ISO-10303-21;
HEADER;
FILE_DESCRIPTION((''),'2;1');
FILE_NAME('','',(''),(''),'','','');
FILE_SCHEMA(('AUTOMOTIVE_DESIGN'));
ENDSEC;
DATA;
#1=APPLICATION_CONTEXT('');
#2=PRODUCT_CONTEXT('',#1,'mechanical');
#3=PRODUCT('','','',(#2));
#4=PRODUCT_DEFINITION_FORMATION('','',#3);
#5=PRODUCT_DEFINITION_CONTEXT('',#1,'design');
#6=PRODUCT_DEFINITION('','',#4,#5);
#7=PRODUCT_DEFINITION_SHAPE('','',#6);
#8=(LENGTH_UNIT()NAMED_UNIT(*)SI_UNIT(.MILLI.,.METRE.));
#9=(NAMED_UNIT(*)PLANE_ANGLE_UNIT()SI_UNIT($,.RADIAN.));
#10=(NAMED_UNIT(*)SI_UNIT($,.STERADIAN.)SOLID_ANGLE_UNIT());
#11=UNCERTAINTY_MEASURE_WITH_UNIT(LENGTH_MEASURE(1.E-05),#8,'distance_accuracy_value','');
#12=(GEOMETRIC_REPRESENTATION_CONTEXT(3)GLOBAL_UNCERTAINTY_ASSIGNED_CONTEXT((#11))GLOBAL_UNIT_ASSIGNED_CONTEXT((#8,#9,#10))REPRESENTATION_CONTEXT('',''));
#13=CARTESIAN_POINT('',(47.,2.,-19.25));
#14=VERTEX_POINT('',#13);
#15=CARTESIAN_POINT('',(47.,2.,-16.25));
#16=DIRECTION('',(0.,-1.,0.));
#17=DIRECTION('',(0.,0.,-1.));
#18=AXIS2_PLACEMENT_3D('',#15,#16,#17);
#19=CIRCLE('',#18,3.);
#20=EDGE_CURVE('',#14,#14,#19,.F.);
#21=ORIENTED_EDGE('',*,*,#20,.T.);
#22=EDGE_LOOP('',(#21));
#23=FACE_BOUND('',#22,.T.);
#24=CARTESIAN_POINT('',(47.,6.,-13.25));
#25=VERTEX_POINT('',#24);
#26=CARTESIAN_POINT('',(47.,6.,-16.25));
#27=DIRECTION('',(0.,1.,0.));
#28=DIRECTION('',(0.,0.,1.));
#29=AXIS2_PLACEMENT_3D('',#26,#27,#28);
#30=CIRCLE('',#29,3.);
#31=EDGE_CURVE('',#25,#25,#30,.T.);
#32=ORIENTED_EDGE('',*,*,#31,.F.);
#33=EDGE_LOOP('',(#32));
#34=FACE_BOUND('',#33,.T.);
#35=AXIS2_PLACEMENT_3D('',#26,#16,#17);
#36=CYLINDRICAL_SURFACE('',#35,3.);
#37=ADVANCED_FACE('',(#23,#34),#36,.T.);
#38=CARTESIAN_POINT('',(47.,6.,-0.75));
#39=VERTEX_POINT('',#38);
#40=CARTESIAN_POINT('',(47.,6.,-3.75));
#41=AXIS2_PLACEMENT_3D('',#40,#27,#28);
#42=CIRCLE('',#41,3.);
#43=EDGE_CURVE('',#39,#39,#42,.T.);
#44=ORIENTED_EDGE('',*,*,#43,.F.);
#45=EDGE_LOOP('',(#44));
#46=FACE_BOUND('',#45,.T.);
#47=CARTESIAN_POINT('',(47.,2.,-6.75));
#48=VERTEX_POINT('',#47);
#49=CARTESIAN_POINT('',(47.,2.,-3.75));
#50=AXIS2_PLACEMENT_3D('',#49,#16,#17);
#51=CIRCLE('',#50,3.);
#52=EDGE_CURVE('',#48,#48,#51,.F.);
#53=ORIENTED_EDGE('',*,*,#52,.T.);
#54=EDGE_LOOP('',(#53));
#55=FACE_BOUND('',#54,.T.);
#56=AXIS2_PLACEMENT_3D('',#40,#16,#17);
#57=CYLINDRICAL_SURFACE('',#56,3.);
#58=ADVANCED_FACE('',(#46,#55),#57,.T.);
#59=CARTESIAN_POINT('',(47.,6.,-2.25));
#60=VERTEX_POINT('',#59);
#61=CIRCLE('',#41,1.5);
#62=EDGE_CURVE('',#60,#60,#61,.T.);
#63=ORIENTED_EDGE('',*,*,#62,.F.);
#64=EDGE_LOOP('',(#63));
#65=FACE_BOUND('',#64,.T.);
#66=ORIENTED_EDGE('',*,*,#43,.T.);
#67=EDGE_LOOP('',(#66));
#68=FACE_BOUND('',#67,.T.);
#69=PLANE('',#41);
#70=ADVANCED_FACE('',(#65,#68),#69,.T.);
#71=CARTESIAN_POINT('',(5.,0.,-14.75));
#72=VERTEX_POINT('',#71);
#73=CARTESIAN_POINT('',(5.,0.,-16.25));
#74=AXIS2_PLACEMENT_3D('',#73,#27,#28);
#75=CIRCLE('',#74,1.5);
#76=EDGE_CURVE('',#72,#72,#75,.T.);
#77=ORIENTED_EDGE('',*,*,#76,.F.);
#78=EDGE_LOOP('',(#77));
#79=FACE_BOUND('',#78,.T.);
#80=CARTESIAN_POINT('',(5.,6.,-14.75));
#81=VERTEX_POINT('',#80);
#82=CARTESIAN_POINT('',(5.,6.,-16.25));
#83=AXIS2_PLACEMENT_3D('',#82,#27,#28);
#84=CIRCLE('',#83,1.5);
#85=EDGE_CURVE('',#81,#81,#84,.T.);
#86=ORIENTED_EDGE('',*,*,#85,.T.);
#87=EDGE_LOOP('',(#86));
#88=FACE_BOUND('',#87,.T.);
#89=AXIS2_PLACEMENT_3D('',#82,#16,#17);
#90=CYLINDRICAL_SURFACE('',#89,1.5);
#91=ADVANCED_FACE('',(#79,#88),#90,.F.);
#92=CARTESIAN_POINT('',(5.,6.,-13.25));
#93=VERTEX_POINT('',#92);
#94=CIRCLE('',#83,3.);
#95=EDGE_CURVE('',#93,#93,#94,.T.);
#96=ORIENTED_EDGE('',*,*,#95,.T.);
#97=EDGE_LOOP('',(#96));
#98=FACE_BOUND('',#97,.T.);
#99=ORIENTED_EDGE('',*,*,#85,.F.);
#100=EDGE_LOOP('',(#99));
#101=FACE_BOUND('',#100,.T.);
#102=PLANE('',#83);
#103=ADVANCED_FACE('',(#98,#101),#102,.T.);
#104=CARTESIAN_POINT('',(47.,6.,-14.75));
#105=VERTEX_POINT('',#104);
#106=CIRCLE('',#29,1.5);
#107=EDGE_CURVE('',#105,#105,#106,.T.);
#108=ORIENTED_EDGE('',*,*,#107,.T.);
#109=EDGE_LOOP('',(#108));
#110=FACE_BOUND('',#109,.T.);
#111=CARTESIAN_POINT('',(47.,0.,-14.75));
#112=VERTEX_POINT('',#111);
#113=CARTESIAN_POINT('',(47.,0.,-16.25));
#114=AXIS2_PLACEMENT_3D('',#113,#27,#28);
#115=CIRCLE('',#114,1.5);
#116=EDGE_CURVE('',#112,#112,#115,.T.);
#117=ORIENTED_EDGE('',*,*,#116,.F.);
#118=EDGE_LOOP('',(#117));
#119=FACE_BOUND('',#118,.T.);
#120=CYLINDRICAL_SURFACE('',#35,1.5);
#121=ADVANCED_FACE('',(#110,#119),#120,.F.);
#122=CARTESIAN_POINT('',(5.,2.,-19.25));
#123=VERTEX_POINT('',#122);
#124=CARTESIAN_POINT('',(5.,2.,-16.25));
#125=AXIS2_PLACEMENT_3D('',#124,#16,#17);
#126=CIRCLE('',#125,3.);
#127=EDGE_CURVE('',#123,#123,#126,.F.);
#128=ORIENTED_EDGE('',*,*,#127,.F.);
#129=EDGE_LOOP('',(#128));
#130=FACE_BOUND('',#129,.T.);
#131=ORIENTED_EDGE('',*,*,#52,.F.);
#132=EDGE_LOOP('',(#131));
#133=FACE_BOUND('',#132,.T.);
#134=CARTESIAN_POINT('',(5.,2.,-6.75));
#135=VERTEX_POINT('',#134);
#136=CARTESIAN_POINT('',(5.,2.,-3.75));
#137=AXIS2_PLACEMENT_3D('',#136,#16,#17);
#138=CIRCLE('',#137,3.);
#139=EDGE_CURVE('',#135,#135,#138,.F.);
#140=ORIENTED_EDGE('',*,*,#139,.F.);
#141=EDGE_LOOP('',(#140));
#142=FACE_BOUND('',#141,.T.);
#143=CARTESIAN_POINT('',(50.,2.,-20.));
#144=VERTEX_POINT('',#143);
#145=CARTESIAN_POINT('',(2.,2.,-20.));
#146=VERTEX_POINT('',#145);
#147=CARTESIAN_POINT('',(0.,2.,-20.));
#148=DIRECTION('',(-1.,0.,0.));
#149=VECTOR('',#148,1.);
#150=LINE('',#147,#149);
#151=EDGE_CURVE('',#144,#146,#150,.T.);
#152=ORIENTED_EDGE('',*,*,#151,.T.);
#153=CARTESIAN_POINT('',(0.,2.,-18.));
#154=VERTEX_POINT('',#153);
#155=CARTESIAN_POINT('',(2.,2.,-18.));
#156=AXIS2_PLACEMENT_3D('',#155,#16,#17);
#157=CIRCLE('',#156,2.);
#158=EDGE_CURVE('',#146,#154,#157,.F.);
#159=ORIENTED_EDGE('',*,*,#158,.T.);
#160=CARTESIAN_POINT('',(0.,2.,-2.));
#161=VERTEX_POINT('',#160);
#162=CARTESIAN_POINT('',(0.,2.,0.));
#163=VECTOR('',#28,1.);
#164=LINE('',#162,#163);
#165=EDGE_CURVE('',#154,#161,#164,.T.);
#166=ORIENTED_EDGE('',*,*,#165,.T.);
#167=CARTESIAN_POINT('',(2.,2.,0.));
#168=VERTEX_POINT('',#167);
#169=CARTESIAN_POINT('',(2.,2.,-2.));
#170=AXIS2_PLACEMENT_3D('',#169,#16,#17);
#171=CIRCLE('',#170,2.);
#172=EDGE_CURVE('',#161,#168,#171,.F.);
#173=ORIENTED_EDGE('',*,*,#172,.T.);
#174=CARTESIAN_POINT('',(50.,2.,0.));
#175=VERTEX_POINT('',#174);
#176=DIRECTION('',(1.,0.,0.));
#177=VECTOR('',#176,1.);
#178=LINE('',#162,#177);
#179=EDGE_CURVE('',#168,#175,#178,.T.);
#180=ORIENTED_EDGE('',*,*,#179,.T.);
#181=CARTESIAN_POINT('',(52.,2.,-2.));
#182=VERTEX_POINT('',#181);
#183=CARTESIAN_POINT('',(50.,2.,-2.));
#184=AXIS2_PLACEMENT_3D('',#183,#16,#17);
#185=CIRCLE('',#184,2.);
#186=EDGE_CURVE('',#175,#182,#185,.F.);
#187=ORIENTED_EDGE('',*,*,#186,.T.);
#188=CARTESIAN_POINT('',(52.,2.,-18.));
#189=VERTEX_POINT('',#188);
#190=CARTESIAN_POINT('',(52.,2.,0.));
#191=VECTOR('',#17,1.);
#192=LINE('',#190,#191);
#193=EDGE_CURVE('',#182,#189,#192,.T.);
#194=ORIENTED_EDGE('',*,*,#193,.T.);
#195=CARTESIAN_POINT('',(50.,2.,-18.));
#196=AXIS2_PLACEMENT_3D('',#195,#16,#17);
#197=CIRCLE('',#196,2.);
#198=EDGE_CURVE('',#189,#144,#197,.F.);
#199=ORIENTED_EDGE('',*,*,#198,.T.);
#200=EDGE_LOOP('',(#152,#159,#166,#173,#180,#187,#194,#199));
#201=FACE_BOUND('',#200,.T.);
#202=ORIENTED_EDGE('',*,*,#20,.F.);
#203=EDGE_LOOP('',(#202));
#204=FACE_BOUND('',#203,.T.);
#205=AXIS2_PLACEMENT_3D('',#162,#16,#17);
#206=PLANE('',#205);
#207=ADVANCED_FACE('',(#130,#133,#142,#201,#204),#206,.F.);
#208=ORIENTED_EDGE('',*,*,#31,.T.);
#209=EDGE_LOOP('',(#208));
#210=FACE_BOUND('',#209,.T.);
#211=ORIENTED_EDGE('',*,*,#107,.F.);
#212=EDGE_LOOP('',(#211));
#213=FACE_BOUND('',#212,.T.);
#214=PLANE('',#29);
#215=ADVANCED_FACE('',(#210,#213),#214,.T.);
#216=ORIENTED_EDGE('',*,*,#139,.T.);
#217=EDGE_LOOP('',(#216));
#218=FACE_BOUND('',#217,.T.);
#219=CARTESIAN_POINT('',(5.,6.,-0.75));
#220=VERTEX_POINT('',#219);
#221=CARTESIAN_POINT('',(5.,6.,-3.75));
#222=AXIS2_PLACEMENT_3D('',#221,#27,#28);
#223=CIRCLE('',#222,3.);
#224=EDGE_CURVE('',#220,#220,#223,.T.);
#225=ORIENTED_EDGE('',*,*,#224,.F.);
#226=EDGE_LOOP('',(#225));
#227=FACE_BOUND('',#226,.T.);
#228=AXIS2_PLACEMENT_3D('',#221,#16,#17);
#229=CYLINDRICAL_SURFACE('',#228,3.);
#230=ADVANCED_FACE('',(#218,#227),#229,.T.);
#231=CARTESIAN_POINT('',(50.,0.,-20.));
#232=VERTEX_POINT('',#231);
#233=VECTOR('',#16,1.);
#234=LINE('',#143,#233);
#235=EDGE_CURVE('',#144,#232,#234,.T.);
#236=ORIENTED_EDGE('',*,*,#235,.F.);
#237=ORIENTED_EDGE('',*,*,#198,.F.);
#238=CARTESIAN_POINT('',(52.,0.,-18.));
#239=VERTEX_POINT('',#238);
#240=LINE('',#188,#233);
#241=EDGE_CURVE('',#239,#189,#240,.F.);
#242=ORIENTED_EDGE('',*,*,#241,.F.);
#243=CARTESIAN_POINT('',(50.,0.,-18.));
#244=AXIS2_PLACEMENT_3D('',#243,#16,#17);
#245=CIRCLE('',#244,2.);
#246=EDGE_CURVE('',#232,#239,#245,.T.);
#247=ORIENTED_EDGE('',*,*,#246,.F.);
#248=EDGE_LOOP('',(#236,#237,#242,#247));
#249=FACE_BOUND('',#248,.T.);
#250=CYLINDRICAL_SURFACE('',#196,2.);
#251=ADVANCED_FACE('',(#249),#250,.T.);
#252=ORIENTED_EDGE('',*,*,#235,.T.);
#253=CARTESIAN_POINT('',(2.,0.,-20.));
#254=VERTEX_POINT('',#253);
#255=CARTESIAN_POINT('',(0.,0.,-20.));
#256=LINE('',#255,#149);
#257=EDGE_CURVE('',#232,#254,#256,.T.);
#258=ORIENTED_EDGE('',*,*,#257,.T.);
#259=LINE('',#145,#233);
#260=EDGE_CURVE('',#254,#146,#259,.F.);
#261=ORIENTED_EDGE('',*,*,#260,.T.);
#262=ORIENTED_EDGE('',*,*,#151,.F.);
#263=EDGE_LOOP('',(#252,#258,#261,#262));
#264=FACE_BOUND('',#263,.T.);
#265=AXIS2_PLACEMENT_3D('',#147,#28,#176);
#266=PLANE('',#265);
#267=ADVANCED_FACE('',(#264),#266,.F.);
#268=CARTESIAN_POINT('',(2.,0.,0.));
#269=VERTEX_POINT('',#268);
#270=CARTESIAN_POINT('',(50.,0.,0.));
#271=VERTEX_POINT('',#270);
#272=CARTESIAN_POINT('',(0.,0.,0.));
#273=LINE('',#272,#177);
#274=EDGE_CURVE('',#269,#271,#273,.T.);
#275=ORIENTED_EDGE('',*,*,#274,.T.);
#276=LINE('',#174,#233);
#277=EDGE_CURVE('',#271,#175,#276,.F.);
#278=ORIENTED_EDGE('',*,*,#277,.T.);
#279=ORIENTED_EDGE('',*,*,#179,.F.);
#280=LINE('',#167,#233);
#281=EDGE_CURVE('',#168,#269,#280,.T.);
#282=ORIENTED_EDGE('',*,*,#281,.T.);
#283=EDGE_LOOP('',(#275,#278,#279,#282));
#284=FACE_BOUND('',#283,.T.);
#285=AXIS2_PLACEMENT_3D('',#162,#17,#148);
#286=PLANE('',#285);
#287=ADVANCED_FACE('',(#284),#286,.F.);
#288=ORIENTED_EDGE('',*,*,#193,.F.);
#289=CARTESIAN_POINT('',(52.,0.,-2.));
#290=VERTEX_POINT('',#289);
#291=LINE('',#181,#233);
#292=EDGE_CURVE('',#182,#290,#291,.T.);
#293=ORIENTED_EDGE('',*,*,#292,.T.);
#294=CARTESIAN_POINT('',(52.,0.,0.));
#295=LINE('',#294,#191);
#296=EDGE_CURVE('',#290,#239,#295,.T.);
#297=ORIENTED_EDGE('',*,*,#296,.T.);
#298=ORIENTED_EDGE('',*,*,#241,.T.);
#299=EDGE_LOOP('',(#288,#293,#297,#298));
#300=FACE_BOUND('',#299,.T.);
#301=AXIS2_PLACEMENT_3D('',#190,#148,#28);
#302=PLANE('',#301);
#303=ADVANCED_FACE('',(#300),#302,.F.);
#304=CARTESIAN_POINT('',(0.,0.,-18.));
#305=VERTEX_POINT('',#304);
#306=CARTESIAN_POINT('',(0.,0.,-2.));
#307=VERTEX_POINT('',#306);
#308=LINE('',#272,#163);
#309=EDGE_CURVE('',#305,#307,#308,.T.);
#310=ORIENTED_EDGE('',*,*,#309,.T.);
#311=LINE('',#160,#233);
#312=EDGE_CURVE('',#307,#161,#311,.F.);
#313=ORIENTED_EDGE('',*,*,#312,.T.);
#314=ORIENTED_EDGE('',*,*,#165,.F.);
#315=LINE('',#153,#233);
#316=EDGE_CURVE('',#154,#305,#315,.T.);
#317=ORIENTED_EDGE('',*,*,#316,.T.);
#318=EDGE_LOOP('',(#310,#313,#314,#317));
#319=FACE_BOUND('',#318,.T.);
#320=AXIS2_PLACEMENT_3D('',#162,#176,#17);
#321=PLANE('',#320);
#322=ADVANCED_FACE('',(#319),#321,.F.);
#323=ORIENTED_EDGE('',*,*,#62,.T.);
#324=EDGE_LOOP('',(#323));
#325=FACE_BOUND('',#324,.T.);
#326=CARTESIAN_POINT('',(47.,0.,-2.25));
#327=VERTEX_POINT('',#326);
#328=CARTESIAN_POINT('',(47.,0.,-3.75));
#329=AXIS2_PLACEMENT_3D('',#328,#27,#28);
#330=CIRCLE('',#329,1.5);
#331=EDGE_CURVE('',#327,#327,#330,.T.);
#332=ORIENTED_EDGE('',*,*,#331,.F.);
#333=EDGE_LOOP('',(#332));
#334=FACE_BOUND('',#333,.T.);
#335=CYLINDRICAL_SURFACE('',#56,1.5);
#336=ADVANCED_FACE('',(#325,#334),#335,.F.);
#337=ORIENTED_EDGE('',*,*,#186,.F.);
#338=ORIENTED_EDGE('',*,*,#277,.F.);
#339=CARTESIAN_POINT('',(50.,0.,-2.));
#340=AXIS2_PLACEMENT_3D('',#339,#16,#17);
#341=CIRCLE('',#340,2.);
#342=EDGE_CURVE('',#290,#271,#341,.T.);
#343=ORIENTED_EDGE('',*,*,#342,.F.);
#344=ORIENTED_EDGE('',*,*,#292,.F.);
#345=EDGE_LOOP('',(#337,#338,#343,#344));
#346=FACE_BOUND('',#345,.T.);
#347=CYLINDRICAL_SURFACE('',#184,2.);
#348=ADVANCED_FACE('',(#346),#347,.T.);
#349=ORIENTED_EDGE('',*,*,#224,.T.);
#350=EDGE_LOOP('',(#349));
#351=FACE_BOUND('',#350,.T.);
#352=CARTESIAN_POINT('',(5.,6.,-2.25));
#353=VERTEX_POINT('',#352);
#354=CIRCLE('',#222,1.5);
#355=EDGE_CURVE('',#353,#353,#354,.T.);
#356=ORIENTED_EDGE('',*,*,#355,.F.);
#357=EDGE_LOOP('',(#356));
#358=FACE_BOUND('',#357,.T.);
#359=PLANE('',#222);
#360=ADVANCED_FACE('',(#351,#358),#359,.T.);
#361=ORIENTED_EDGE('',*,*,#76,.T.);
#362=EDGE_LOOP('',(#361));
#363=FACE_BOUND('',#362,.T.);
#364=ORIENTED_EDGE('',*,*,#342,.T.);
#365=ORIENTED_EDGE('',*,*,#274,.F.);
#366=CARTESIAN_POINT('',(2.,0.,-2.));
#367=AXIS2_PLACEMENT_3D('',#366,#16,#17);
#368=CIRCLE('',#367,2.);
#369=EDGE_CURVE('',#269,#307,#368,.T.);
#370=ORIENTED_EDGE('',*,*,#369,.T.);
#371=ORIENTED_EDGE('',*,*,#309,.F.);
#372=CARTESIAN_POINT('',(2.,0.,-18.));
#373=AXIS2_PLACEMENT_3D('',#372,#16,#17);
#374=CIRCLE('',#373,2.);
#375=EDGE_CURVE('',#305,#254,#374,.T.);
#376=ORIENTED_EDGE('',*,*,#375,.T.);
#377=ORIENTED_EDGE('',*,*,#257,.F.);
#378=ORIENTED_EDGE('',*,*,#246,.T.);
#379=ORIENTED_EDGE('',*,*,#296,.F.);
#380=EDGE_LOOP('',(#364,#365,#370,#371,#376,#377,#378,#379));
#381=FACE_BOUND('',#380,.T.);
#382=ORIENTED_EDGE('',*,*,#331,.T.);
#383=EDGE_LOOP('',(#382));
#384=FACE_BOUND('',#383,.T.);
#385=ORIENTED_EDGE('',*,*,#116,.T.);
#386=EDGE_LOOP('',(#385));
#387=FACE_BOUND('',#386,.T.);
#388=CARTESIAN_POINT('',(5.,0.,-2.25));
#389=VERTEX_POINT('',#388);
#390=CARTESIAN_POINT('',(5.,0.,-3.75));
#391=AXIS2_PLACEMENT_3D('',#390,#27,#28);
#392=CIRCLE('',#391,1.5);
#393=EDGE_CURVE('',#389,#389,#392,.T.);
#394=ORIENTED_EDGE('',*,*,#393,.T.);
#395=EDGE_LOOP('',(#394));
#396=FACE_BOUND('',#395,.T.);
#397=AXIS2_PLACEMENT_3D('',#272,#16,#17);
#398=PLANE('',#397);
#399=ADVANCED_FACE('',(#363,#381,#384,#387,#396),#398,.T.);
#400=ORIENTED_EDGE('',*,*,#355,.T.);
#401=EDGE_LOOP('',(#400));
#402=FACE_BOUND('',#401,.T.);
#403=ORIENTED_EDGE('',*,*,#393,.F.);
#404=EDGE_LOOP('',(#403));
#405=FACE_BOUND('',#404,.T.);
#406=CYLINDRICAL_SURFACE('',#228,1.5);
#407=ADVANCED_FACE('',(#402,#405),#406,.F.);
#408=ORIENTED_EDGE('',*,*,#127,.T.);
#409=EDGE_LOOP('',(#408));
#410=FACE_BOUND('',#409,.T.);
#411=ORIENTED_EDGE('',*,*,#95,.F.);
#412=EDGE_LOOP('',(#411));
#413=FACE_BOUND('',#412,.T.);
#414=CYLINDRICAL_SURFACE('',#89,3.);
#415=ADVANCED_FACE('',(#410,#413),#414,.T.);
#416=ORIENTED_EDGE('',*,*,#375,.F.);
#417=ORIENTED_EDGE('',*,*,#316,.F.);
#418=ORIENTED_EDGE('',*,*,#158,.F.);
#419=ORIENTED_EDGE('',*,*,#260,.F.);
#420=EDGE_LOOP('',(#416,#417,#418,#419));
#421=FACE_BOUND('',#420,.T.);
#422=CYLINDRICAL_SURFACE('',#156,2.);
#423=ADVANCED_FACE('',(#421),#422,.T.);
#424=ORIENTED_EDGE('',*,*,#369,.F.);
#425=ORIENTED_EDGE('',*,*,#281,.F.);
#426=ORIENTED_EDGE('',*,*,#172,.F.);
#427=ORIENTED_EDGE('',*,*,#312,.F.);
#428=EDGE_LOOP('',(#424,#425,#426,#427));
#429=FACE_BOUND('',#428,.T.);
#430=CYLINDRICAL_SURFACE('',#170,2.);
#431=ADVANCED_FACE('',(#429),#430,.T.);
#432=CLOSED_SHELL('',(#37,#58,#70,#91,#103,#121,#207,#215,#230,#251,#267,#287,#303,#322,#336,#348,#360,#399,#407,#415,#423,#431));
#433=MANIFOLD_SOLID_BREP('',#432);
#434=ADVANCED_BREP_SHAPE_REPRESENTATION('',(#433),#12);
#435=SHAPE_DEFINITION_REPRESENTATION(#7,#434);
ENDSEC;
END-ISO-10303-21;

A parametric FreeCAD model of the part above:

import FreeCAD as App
import Part
import Sketcher
from FreeCAD import Vector
Q = App.Units.Quantity


def edges_at(feature, points):
    """Names of the edges that pass closest to the given points."""
    edges = feature.Shape.Edges
    near = lambda p: min(range(len(edges)), key=lambda i: edges[i].distToShape(Part.Vertex(*p))[0])
    return sorted({f"Edge{near(p) + 1}" for p in points})

doc = App.newDocument("Part")
body = doc.addObject("PartDesign::Body", "Body")

# Sketch on XZ plane
sketch1 = body.newObject("Sketcher::SketchObject", "Sketch")
sketch1.AttachmentSupport = (doc.getObject("XZ_Plane"), [""])
sketch1.MapMode = "FlatFace"
sketch1.addGeometry([
    Part.LineSegment(Vector(0, -20, 0), Vector(0, 0, 0)),
    Part.LineSegment(Vector(0, 0, 0), Vector(52, 0, 0)),
    Part.LineSegment(Vector(52, 0, 0), Vector(52, -20, 0)),
    Part.LineSegment(Vector(52, -20, 0), Vector(0, -20, 0)),
], False)
sketch1.addConstraint([
    Sketcher.Constraint("Coincident", 0, 2, 1, 1),
    Sketcher.Constraint("Coincident", 1, 2, 2, 1),
    Sketcher.Constraint("Coincident", 2, 2, 3, 1),
    Sketcher.Constraint("Coincident", 3, 2, 0, 1),
    Sketcher.Constraint("Vertical", 0),
    Sketcher.Constraint("Horizontal", 1),
    Sketcher.Constraint("Vertical", 2),
    Sketcher.Constraint("Horizontal", 3),
    Sketcher.Constraint("Coincident", 0, 2, -1, 1),
    Sketcher.Constraint("DistanceX", 1, 1, 1, 2, Q("52 mm")),
    Sketcher.Constraint("DistanceY", 0, 1, 0, 2, Q("20 mm")),
])
pad1 = body.newObject("PartDesign::Pad", "Pad")
pad1.Profile = sketch1
pad1.Length = 2
pad1.Reversed = True

# Sketch on XZ plane
sketch2 = body.newObject("Sketcher::SketchObject", "Sketch001")
sketch2.AttachmentSupport = (doc.getObject("XZ_Plane"), [""])
sketch2.MapMode = "FlatFace"
sketch2.AttachmentOffset = App.Placement(Vector(0, 0, -2), App.Rotation())
sketch2.addGeometry([
    Part.Circle(Vector(5, -16.2, 0), Vector(0, 0, 1), 3),  # 0
    Part.Circle(Vector(5, -16.2, 0), Vector(0, 0, 1), 1.5),  # 1
    Part.Circle(Vector(5, -3.8, 0), Vector(0, 0, 1), 3),  # 2
    Part.Circle(Vector(5, -3.8, 0), Vector(0, 0, 1), 1.5),  # 3
    Part.Circle(Vector(47, -3.8, 0), Vector(0, 0, 1), 3),  # 4
    Part.Circle(Vector(47, -3.8, 0), Vector(0, 0, 1), 1.5),  # 5
    Part.Circle(Vector(47, -16.2, 0), Vector(0, 0, 1), 3),  # 6
    Part.Circle(Vector(47, -16.2, 0), Vector(0, 0, 1), 1.5),  # 7
], False)
sketch2.addConstraint([
    Sketcher.Constraint("Coincident", 1, 3, 0, 3),
    Sketcher.Constraint("Coincident", 3, 3, 2, 3),
    Sketcher.Constraint("Coincident", 5, 3, 4, 3),
    Sketcher.Constraint("Coincident", 7, 3, 6, 3),
    Sketcher.Constraint("Equal", 0, 2),
    Sketcher.Constraint("Equal", 1, 3),
    Sketcher.Constraint("Equal", 2, 4),
    Sketcher.Constraint("Equal", 3, 5),
    Sketcher.Constraint("Equal", 4, 6),
    Sketcher.Constraint("Equal", 5, 7),
    Sketcher.Constraint("Horizontal", 3, 3, 4, 3),
    Sketcher.Constraint("Horizontal", 1, 3, 6, 3),
    Sketcher.Constraint("Vertical", 1, 3, 2, 3),
    Sketcher.Constraint("Vertical", 5, 3, 6, 3),
    Sketcher.Constraint("Diameter", 0, Q("6 mm")),
    Sketcher.Constraint("Diameter", 1, Q("3 mm")),
    Sketcher.Constraint("DistanceX", -1, 1, 0, 3, Q("5 mm")),
    Sketcher.Constraint("DistanceX", -1, 1, 4, 3, Q("47 mm")),
    Sketcher.Constraint("DistanceY", 0, 3, 2, 3, Q("12.5 mm")),
    Sketcher.Constraint("DistanceY", 0, 3, -1, 1, Q("16.25 mm")),
])
pad2 = body.newObject("PartDesign::Pad", "Pad001")
pad2.Profile = sketch2
pad2.Length = 4
pad2.Reversed = True

# Sketch on XZ plane
sketch3 = body.newObject("Sketcher::SketchObject", "Sketch002")
sketch3.AttachmentSupport = (doc.getObject("XZ_Plane"), [""])
sketch3.MapMode = "FlatFace"
sketch3.AttachmentOffset = App.Placement(Vector(0, 0, -2), App.Rotation())
sketch3.addGeometry([
    Part.Circle(Vector(47, -3.8, 0), Vector(0, 0, 1), 1.5),
    Part.Circle(Vector(47, -16.2, 0), Vector(0, 0, 1), 1.5),
    Part.Circle(Vector(5, -3.8, 0), Vector(0, 0, 1), 1.5),
    Part.Circle(Vector(5, -16.2, 0), Vector(0, 0, 1), 1.5),
], False)
sketch3.addConstraint([
    Sketcher.Constraint("Equal", 0, 1),
    Sketcher.Constraint("Equal", 1, 2),
    Sketcher.Constraint("Equal", 2, 3),
    Sketcher.Constraint("Horizontal", 0, 3, 2, 3),
    Sketcher.Constraint("Horizontal", 1, 3, 3, 3),
    Sketcher.Constraint("Vertical", 0, 3, 1, 3),
    Sketcher.Constraint("Vertical", 2, 3, 3, 3),
    Sketcher.Constraint("Diameter", 0, Q("3 mm")),
    Sketcher.Constraint("DistanceX", -1, 1, 0, 3, Q("47 mm")),
    Sketcher.Constraint("DistanceX", -1, 1, 2, 3, Q("5 mm")),
    Sketcher.Constraint("DistanceY", 1, 3, 0, 3, Q("12.5 mm")),
    Sketcher.Constraint("DistanceY", 0, 3, -1, 1, Q("3.75 mm")),
])
pocket1 = body.newObject("PartDesign::Pocket", "Pocket")
pocket1.Profile = sketch3
pocket1.Type = "ThroughAll"
pocket1.Reversed = True
doc.recompute()

fillet = body.newObject("PartDesign::Fillet", "Fillet")
fillet.Base = (pocket1, edges_at(pocket1, [
    (0, 1, -20),
    (52, 1, -20),
    (52, 1, 0),
    (0, 1, 0),
]))
fillet.Radius = 2

doc.recompute()
